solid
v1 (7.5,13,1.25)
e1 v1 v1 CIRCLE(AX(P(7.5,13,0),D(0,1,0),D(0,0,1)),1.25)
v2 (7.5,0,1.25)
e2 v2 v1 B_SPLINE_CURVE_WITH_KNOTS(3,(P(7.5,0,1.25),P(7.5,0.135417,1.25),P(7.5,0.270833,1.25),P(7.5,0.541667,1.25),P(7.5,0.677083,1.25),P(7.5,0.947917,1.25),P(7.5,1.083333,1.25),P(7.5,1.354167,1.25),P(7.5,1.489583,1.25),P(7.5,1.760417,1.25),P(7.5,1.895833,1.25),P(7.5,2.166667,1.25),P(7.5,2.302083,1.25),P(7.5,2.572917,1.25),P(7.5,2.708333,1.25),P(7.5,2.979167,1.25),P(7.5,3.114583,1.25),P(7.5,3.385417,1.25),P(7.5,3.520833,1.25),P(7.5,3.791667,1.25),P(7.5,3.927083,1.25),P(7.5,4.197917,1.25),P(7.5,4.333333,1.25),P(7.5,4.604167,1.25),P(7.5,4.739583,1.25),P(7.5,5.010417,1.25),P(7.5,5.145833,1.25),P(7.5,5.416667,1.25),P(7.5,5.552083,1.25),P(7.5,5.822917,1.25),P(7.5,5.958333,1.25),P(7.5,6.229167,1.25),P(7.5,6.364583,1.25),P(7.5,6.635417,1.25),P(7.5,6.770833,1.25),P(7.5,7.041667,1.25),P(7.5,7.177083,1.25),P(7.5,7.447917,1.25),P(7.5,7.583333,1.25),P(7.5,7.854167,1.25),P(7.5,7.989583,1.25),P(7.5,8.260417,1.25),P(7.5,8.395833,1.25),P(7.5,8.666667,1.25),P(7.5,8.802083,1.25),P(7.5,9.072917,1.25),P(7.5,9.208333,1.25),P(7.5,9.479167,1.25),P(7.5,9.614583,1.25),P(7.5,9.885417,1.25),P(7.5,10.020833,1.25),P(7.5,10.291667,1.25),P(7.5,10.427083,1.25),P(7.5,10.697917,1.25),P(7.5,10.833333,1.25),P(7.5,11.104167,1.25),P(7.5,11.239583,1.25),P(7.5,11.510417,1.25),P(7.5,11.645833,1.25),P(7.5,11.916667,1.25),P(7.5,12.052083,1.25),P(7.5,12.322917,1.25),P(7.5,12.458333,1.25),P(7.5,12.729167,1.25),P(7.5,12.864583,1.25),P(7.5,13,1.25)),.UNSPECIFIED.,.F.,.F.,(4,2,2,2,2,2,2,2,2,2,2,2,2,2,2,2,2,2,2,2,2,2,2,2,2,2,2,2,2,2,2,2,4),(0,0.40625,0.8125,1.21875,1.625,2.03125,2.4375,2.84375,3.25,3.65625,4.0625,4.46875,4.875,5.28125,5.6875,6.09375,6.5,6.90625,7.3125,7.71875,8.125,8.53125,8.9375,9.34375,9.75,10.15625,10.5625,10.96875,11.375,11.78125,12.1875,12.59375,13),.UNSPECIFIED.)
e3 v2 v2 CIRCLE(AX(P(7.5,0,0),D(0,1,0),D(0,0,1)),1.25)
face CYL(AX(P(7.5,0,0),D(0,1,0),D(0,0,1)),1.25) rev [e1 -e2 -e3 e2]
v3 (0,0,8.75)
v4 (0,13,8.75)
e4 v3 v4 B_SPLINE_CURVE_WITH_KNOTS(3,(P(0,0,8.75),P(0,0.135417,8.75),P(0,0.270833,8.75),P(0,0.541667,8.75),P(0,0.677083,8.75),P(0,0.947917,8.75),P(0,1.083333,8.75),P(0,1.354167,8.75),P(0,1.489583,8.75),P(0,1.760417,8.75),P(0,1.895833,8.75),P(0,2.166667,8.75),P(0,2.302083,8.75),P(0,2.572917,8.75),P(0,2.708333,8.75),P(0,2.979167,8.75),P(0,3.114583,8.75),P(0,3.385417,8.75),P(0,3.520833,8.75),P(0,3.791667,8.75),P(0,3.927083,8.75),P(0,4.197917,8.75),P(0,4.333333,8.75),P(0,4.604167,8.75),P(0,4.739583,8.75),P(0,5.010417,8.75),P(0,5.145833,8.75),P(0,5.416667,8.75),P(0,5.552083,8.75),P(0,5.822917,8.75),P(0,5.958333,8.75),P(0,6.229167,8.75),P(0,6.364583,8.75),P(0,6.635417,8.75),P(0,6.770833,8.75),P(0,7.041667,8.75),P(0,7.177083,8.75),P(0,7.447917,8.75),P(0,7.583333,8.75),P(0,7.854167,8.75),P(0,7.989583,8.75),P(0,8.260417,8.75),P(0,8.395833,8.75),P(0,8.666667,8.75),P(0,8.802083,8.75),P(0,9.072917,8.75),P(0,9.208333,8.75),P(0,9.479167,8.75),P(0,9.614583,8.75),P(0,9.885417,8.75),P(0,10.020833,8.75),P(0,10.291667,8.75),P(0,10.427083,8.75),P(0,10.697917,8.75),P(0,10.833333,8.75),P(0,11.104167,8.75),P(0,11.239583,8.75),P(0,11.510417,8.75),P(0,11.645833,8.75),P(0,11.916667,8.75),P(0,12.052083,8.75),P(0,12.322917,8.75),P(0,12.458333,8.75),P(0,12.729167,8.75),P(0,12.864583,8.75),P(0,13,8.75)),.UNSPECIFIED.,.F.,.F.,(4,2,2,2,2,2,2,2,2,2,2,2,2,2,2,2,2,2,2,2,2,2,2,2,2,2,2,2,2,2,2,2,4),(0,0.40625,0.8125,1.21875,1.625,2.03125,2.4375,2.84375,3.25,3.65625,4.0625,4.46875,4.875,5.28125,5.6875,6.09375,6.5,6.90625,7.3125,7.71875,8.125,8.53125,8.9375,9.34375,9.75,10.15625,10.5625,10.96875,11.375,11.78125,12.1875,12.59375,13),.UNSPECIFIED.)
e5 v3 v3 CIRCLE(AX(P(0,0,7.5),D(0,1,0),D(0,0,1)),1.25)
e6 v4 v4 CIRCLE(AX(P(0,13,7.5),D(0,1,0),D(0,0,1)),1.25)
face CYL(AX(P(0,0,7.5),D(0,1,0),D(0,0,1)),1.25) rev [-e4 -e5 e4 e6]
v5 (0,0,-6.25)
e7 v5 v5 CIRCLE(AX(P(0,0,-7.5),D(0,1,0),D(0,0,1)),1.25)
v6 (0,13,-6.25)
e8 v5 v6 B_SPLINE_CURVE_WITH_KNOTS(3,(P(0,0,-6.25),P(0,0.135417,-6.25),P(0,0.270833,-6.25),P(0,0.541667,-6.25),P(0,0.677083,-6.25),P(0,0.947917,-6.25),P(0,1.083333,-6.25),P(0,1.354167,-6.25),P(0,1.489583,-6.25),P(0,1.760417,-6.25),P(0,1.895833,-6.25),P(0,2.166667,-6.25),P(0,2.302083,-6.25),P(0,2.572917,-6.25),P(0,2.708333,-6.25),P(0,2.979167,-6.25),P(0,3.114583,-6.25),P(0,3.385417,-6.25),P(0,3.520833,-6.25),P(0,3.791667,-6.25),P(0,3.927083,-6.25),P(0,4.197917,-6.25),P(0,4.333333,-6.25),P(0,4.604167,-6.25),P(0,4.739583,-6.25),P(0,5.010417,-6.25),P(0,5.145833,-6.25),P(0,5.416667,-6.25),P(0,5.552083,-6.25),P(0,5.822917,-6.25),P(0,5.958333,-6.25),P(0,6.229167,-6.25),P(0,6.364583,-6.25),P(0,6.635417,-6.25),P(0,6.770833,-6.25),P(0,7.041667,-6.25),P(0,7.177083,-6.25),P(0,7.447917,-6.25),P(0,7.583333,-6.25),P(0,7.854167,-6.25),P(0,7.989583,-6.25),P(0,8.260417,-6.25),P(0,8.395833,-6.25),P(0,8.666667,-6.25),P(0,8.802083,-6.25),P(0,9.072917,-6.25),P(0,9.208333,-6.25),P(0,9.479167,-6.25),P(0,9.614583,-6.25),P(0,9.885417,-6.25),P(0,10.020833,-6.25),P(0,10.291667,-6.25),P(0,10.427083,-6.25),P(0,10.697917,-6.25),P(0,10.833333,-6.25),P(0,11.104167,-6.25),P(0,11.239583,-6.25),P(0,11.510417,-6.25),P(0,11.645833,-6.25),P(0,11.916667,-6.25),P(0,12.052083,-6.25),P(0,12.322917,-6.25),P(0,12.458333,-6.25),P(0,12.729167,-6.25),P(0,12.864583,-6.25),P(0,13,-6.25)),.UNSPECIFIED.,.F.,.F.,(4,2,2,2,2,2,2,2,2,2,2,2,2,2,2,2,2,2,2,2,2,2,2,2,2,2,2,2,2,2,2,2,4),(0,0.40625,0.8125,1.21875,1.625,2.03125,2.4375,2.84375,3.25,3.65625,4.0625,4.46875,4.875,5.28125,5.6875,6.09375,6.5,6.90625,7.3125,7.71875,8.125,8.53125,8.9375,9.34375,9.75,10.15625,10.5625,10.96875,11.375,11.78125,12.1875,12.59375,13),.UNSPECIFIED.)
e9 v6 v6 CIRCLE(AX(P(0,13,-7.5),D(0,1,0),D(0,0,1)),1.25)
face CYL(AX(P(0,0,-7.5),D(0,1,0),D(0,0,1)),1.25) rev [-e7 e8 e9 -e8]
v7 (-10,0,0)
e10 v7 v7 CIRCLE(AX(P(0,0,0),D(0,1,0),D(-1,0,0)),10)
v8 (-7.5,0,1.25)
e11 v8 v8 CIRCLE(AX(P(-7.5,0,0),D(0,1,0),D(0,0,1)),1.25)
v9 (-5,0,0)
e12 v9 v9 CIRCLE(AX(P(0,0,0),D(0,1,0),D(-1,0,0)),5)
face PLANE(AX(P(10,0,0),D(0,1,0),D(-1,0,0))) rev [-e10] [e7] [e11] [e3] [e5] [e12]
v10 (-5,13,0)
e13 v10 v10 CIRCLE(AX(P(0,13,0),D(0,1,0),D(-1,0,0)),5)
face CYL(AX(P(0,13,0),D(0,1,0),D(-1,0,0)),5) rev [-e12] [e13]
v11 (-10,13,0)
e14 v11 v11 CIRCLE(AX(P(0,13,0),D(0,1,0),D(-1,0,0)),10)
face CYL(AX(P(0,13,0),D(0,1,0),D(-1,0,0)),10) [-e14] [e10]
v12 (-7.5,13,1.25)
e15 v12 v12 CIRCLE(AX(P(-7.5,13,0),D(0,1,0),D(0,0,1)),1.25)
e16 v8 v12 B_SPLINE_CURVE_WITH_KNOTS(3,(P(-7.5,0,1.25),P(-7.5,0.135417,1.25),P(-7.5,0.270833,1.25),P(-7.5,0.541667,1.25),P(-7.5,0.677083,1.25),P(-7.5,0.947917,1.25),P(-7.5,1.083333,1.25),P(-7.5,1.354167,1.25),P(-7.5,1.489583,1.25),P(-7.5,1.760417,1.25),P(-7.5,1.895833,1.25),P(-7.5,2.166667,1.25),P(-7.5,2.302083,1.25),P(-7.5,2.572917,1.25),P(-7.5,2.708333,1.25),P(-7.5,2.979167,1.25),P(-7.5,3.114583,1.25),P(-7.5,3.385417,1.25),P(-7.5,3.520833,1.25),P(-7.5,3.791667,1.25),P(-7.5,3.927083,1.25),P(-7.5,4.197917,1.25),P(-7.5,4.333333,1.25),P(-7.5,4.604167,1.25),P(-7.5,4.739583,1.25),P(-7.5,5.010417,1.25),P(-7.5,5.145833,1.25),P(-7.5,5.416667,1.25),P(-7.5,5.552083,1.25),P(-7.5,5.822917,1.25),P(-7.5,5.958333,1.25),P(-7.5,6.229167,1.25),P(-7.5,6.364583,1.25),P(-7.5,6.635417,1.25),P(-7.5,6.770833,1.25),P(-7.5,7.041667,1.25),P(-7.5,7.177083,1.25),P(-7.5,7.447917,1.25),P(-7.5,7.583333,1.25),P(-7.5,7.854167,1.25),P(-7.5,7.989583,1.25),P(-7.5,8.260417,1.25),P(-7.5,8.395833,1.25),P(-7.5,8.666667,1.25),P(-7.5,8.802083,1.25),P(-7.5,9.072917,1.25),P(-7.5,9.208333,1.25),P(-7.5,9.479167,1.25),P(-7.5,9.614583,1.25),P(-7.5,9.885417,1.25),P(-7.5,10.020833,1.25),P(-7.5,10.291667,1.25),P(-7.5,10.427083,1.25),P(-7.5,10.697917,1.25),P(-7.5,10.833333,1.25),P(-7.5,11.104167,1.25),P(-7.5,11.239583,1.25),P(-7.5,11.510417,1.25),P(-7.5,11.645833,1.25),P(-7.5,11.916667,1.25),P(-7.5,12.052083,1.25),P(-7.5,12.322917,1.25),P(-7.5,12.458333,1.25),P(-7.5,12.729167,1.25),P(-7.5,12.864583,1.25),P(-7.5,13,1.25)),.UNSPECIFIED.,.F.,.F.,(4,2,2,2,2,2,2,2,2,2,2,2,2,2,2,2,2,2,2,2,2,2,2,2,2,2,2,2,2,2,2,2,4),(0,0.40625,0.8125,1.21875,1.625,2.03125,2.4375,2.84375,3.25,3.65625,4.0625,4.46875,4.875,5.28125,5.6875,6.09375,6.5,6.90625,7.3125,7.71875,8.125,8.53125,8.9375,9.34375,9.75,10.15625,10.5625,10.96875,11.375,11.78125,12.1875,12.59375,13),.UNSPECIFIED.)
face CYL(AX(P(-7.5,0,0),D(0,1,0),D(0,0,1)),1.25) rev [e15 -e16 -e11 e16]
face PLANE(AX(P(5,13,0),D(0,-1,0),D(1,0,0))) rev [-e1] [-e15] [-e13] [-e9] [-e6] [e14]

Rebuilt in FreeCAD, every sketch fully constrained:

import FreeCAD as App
import Part
import Sketcher

V = App.Vector

doc = App.newDocument("Part")
body = doc.addObject("PartDesign::Body", "Body")

sketch1 = body.newObject("Sketcher::SketchObject", "Sketch")
sketch1.AttachmentSupport = (doc.getObject("XY_Plane"), [""])
sketch1.MapMode = "FlatFace"
sketch1.addGeometry([
    Part.LineSegment(V(5, 13, 0), V(5, 0, 0)),
    Part.LineSegment(V(5, 0, 0), V(10, 0, 0)),
    Part.LineSegment(V(10, 0, 0), V(10, 13, 0)),
    Part.LineSegment(V(10, 13, 0), V(5, 13, 0)),
], False)
sketch1.addConstraint([
    Sketcher.Constraint("Coincident", 0, 2, 1, 1),
    Sketcher.Constraint("Coincident", 1, 2, 2, 1),
    Sketcher.Constraint("Coincident", 2, 2, 3, 1),
    Sketcher.Constraint("Coincident", 3, 2, 0, 1),
    Sketcher.Constraint("Vertical", 0),
    Sketcher.Constraint("Horizontal", 1),
    Sketcher.Constraint("Vertical", 2),
    Sketcher.Constraint("Horizontal", 3),
    Sketcher.Constraint("PointOnObject", 0, 2, -1),
    Sketcher.Constraint("DistanceX", 1, 1, 1, 2, 5.0),
    Sketcher.Constraint("DistanceY", 0, 2, 0, 1, 13.0),
    Sketcher.Constraint("DistanceX", -1, 1, 0, 2, 5.0),
])
revolution = body.newObject("PartDesign::Revolution", "Revolution")
revolution.Profile = sketch1
revolution.ReferenceAxis = (sketch1, ["V_Axis"])
revolution.Angle = 360

sketch2 = body.newObject("Sketcher::SketchObject", "Sketch001")
sketch2.AttachmentSupport = (doc.getObject("XZ_Plane"), [""])
sketch2.MapMode = "FlatFace"
sketch2.AttachmentOffset = App.Placement(V(0, 0, -13), App.Rotation())
sketch2.addGeometry([
    Part.Circle(V(0, -7.5, 0), V(0, 0, 1), 1.2),
    Part.Circle(V(7.5, 0, 0), V(0, 0, 1), 1.2),
    Part.Circle(V(0, 7.5, 0), V(0, 0, 1), 1.2),
    Part.Circle(V(-7.5, 0, 0), V(0, 0, 1), 1.2),
], False)
sketch2.addConstraint([
    Sketcher.Constraint("Equal", 0, 1),
    Sketcher.Constraint("Equal", 1, 2),
    Sketcher.Constraint("Equal", 2, 3),
    Sketcher.Constraint("Symmetric", 0, 3, 2, 3, -1, 1),
    Sketcher.Constraint("Symmetric", 1, 3, 3, 3, -1, 1),
    Sketcher.Constraint("PointOnObject", 0, 3, -2),
    Sketcher.Constraint("PointOnObject", 1, 3, -1),
    Sketcher.Constraint("Diameter", 0, 2.5),
    Sketcher.Constraint("DistanceY", 0, 3, 2, 3, 15.0),
    Sketcher.Constraint("DistanceX", 3, 3, 1, 3, 15.0),
])
pocket1 = body.newObject("PartDesign::Pocket", "Pocket")
pocket1.Profile = sketch2
pocket1.Type = "ThroughAll"
pocket1.Reversed = True

doc.recompute()
